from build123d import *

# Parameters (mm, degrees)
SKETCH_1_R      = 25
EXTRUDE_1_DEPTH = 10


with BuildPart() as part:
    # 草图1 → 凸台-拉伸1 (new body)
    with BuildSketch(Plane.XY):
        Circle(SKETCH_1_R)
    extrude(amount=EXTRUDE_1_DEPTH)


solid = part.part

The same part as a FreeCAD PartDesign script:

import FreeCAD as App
import Part
import Sketcher

V = App.Vector

doc = App.newDocument("Part")
params = doc.addObject("Spreadsheet::Sheet", "Params")
for row, (alias, value) in enumerate([
    ("sketch1_diameter", "50 mm"),
    ("pad1_length", "10 mm"),
], start=1):
    params.set(f"A{row}", alias)
    params.set(f"B{row}", "=" + value)
    params.setAlias(f"B{row}", alias)

body = doc.addObject("PartDesign::Body", "Body")

# Sketch on XY plane
sketch1 = body.newObject("Sketcher::SketchObject", "Sketch")
sketch1.AttachmentSupport = (doc.getObject("XY_Plane"), [""])
sketch1.MapMode = "FlatFace"
sketch1.addGeometry(Part.Circle(V(0, 0, 0), V(0, 0, 1), 25), False)
sketch1.addConstraint([
    Sketcher.Constraint("Coincident", 0, 3, -1, 1),
    Sketcher.Constraint("Diameter", 0, 50.0),
])
sketch1.setExpression("Constraints[1]", "Params.sketch1_diameter")
pad1 = body.newObject("PartDesign::Pad", "Pad")
pad1.Profile = sketch1
pad1.setExpression("Length", "Params.pad1_length")

doc.recompute()
